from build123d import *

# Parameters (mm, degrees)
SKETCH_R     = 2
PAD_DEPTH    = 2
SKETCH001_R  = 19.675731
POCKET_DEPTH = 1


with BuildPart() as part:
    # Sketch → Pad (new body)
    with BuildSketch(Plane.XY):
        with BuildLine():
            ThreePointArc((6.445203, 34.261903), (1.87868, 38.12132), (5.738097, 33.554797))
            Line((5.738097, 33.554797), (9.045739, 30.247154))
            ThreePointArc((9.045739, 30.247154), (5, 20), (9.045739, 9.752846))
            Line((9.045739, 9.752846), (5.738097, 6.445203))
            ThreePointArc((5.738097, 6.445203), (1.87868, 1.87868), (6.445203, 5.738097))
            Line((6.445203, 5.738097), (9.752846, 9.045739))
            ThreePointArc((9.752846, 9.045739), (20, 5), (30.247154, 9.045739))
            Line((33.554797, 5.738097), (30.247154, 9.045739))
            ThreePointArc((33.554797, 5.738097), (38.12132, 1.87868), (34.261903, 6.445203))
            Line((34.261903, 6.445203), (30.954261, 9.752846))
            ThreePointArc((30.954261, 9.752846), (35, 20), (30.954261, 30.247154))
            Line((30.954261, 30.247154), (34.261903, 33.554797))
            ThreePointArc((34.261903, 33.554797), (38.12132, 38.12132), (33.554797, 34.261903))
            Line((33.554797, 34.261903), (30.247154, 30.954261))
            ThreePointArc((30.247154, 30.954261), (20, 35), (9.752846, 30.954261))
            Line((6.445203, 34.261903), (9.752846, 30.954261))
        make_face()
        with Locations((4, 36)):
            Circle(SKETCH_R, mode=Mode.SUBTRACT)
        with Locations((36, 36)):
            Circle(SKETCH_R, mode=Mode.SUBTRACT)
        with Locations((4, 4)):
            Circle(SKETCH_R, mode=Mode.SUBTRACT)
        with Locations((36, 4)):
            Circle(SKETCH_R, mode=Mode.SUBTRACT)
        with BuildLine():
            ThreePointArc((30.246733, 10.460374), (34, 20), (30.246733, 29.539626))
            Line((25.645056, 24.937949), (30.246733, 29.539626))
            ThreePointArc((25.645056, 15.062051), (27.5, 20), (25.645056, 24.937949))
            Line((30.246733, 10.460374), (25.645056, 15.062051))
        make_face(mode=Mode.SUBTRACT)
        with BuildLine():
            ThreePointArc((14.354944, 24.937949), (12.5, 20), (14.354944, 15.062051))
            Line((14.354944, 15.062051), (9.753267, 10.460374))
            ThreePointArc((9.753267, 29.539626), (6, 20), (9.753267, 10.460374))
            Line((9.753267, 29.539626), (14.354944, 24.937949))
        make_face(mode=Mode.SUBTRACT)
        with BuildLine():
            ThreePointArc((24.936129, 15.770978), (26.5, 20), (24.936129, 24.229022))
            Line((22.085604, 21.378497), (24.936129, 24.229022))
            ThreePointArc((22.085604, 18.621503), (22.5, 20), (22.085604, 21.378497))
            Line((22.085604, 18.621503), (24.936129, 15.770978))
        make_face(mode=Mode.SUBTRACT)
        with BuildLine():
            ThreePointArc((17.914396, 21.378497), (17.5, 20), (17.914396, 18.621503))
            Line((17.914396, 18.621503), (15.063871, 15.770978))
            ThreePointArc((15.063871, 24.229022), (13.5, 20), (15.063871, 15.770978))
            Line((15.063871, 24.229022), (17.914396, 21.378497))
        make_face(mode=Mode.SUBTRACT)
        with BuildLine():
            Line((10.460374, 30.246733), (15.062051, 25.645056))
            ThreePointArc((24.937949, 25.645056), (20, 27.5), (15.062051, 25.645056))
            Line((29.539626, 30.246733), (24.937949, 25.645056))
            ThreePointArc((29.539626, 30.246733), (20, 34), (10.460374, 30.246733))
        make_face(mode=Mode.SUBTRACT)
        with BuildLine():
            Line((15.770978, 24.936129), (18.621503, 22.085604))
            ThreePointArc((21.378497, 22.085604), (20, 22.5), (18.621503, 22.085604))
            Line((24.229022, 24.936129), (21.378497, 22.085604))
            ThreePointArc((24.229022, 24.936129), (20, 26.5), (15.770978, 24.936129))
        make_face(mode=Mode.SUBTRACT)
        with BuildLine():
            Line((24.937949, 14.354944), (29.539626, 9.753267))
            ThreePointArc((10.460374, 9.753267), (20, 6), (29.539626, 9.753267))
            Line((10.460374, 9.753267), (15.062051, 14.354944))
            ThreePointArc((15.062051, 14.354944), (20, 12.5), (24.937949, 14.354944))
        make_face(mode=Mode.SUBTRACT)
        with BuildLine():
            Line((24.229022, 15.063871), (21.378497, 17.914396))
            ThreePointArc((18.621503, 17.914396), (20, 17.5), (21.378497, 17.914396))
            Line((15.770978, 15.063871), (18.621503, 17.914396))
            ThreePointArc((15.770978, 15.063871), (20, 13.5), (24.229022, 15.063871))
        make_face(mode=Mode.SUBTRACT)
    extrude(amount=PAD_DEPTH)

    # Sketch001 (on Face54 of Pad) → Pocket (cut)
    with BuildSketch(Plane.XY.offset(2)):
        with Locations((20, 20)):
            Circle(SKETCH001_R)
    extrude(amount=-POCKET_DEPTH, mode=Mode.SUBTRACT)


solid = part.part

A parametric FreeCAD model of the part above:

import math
import FreeCAD as App
import Part
import Sketcher

V = App.Vector

doc = App.newDocument("Part")
body = doc.addObject("PartDesign::Body", "Body")

# Sketch on XY plane
sketch1 = body.newObject("Sketcher::SketchObject", "Sketch")
sketch1.AttachmentSupport = (doc.getObject("XY_Plane"), [""])
sketch1.MapMode = "FlatFace"
sketch1.addGeometry([
    Part.ArcOfCircle(Part.Circle(V(4, 36, 0), V(0, 0, 1), 3), math.radians(-35), math.radians(305)),  # 0
    Part.LineSegment(V(5.7, 33.6, 0), V(9, 30.2, 0)),  # 1
    Part.ArcOfCircle(Part.Circle(V(20, 20, 0), V(0, 0, 1), 15), math.radians(137), math.radians(223)),  # 2
    Part.LineSegment(V(9, 9.8, 0), V(5.7, 6.4, 0)),  # 3
    Part.ArcOfCircle(Part.Circle(V(4, 4, 0), V(0, 0, 1), 3), math.radians(55), math.radians(395)),  # 4
    Part.LineSegment(V(6.4, 5.7, 0), V(9.8, 9, 0)),  # 5
    Part.ArcOfCircle(Part.Circle(V(20, 20, 0), V(0, 0, 1), 15), math.radians(-133), math.radians(-47)),  # 6
    Part.LineSegment(V(30.2, 9, 0), V(33.6, 5.7, 0)),  # 7
    Part.ArcOfCircle(Part.Circle(V(36, 4, 0), V(0, 0, 1), 3), math.radians(145), math.radians(485)),  # 8
    Part.LineSegment(V(34.3, 6.4, 0), V(31, 9.8, 0)),  # 9
    Part.ArcOfCircle(Part.Circle(V(20, 20, 0), V(0, 0, 1), 15), math.radians(-43), math.radians(43)),  # 10
    Part.LineSegment(V(31, 30.2, 0), V(34.3, 33.6, 0)),  # 11
    Part.ArcOfCircle(Part.Circle(V(36, 36, 0), V(0, 0, 1), 3), math.radians(-125), math.radians(215)),  # 12
    Part.LineSegment(V(33.6, 34.3, 0), V(30.2, 31, 0)),  # 13
    Part.ArcOfCircle(Part.Circle(V(20, 20, 0), V(0, 0, 1), 15), math.radians(47), math.radians(133)),  # 14
    Part.LineSegment(V(9.8, 31, 0), V(6.4, 34.3, 0)),  # 15
    Part.Circle(V(4, 4, 0), V(0, 0, 1), 2),  # 16
    Part.ArcOfCircle(Part.Circle(V(20, 20, 0), V(0, 0, 1), 7.5), math.radians(-131), math.radians(-49)),  # 17
    Part.LineSegment(V(24.9, 14.4, 0), V(29.5, 9.8, 0)),  # 18
    Part.ArcOfCircle(Part.Circle(V(20, 20, 0), V(0, 0, 1), 14), math.radians(-133), math.radians(-47)),  # 19
    Part.LineSegment(V(10.5, 9.8, 0), V(15.1, 14.4, 0)),  # 20
    Part.Circle(V(36, 4, 0), V(0, 0, 1), 2),  # 21
    Part.LineSegment(V(21.4, 17.9, 0), V(24.2, 15.1, 0)),  # 22
    Part.ArcOfCircle(Part.Circle(V(20, 20, 0), V(0, 0, 1), 6.5), math.radians(-131), math.radians(-49)),  # 23
    Part.LineSegment(V(15.8, 15.1, 0), V(18.6, 17.9, 0)),  # 24
    Part.ArcOfCircle(Part.Circle(V(20, 20, 0), V(0, 0, 1), 2.5), math.radians(-123), math.radians(-57)),  # 25
    Part.LineSegment(V(9.8, 29.5, 0), V(14.4, 24.9, 0)),  # 26
    Part.ArcOfCircle(Part.Circle(V(20, 20, 0), V(0, 0, 1), 7.5), math.radians(139), math.radians(221)),  # 27
    Part.LineSegment(V(14.4, 15.1, 0), V(9.8, 10.5, 0)),  # 28
    Part.ArcOfCircle(Part.Circle(V(20, 20, 0), V(0, 0, 1), 14), math.radians(137), math.radians(223)),  # 29
    Part.LineSegment(V(15.1, 24.2, 0), V(17.9, 21.4, 0)),  # 30
    Part.ArcOfCircle(Part.Circle(V(20, 20, 0), V(0, 0, 1), 2.5), math.radians(147), math.radians(213)),  # 31
    Part.LineSegment(V(17.9, 18.6, 0), V(15.1, 15.8, 0)),  # 32
    Part.ArcOfCircle(Part.Circle(V(20, 20, 0), V(0, 0, 1), 6.5), math.radians(139), math.radians(221)),  # 33
    Part.Circle(V(4, 36, 0), V(0, 0, 1), 2),  # 34
    Part.ArcOfCircle(Part.Circle(V(20, 20, 0), V(0, 0, 1), 6.5), math.radians(-41), math.radians(41)),  # 35
    Part.LineSegment(V(24.9, 15.8, 0), V(22.1, 18.6, 0)),  # 36
    Part.ArcOfCircle(Part.Circle(V(20, 20, 0), V(0, 0, 1), 2.5), math.radians(-33), math.radians(33)),  # 37
    Part.LineSegment(V(22.1, 21.4, 0), V(24.9, 24.2, 0)),  # 38
    Part.LineSegment(V(18.6, 22.1, 0), V(15.8, 24.9, 0)),  # 39
    Part.ArcOfCircle(Part.Circle(V(20, 20, 0), V(0, 0, 1), 6.5), math.radians(49), math.radians(131)),  # 40
    Part.LineSegment(V(24.2, 24.9, 0), V(21.4, 22.1, 0)),  # 41
    Part.ArcOfCircle(Part.Circle(V(20, 20, 0), V(0, 0, 1), 2.5), math.radians(57), math.radians(123)),  # 42
    Part.ArcOfCircle(Part.Circle(V(20, 20, 0), V(0, 0, 1), 14), math.radians(-43), math.radians(43)),  # 43
    Part.LineSegment(V(30.2, 10.5, 0), V(25.6, 15.1, 0)),  # 44
    Part.ArcOfCircle(Part.Circle(V(20, 20, 0), V(0, 0, 1), 7.5), math.radians(-41), math.radians(41)),  # 45
    Part.LineSegment(V(25.6, 24.9, 0), V(30.2, 29.5, 0)),  # 46
    Part.LineSegment(V(15.1, 25.6, 0), V(10.5, 30.2, 0)),  # 47
    Part.ArcOfCircle(Part.Circle(V(20, 20, 0), V(0, 0, 1), 14), math.radians(47), math.radians(133)),  # 48
    Part.LineSegment(V(29.5, 30.2, 0), V(24.9, 25.6, 0)),  # 49
    Part.ArcOfCircle(Part.Circle(V(20, 20, 0), V(0, 0, 1), 7.5), math.radians(49), math.radians(131)),  # 50
    Part.Circle(V(36, 36, 0), V(0, 0, 1), 2),  # 51
], False)
sketch1.addConstraint([
    Sketcher.Constraint("Coincident", 0, 2, 1, 1),
    Sketcher.Constraint("Coincident", 1, 2, 2, 1),
    Sketcher.Constraint("Coincident", 2, 2, 3, 1),
    Sketcher.Constraint("Coincident", 3, 2, 4, 1),
    Sketcher.Constraint("Coincident", 4, 2, 5, 1),
    Sketcher.Constraint("Coincident", 5, 2, 6, 1),
    Sketcher.Constraint("Coincident", 6, 2, 7, 1),
    Sketcher.Constraint("Coincident", 7, 2, 8, 1),
    Sketcher.Constraint("Coincident", 8, 2, 9, 1),
    Sketcher.Constraint("Coincident", 9, 2, 10, 1),
    Sketcher.Constraint("Coincident", 10, 2, 11, 1),
    Sketcher.Constraint("Coincident", 11, 2, 12, 1),
    Sketcher.Constraint("Coincident", 12, 2, 13, 1),
    Sketcher.Constraint("Coincident", 13, 2, 14, 1),
    Sketcher.Constraint("Coincident", 14, 2, 15, 1),
    Sketcher.Constraint("Coincident", 15, 2, 0, 1),
    Sketcher.Constraint("Coincident", 17, 2, 18, 1),
    Sketcher.Constraint("Coincident", 18, 2, 19, 2),
    Sketcher.Constraint("Coincident", 19, 1, 20, 1),
    Sketcher.Constraint("Coincident", 20, 2, 17, 1),
    Sketcher.Constraint("Coincident", 22, 2, 23, 2),
    Sketcher.Constraint("Coincident", 23, 1, 24, 1),
    Sketcher.Constraint("Coincident", 24, 2, 25, 1),
    Sketcher.Constraint("Coincident", 25, 2, 22, 1),
    Sketcher.Constraint("Coincident", 26, 2, 27, 1),
    Sketcher.Constraint("Coincident", 27, 2, 28, 1),
    Sketcher.Constraint("Coincident", 28, 2, 29, 2),
    Sketcher.Constraint("Coincident", 29, 1, 26, 1),
    Sketcher.Constraint("Coincident", 30, 2, 31, 1),
    Sketcher.Constraint("Coincident", 31, 2, 32, 1),
    Sketcher.Constraint("Coincident", 32, 2, 33, 2),
    Sketcher.Constraint("Coincident", 33, 1, 30, 1),
    Sketcher.Constraint("Coincident", 35, 1, 36, 1),
    Sketcher.Constraint("Coincident", 36, 2, 37, 1),
    Sketcher.Constraint("Coincident", 37, 2, 38, 1),
    Sketcher.Constraint("Coincident", 38, 2, 35, 2),
    Sketcher.Constraint("Coincident", 39, 2, 40, 2),
    Sketcher.Constraint("Coincident", 40, 1, 41, 1),
    Sketcher.Constraint("Coincident", 41, 2, 42, 1),
    Sketcher.Constraint("Coincident", 42, 2, 39, 1),
    Sketcher.Constraint("Coincident", 43, 1, 44, 1),
    Sketcher.Constraint("Coincident", 44, 2, 45, 1),
    Sketcher.Constraint("Coincident", 45, 2, 46, 1),
    Sketcher.Constraint("Coincident", 46, 2, 43, 2),
    Sketcher.Constraint("Coincident", 47, 2, 48, 2),
    Sketcher.Constraint("Coincident", 48, 1, 49, 1),
    Sketcher.Constraint("Coincident", 49, 2, 50, 1),
    Sketcher.Constraint("Coincident", 50, 2, 47, 1),
    Sketcher.Constraint("Coincident", 6, 3, 2, 3),
    Sketcher.Constraint("Coincident", 10, 3, 2, 3),
    Sketcher.Constraint("Coincident", 14, 3, 2, 3),
    Sketcher.Constraint("Coincident", 16, 3, 4, 3),
    Sketcher.Constraint("Coincident", 17, 3, 2, 3),
    Sketcher.Constraint("Coincident", 19, 3, 2, 3),
    Sketcher.Constraint("Coincident", 21, 3, 8, 3),
    Sketcher.Constraint("Coincident", 23, 3, 2, 3),
    Sketcher.Constraint("Coincident", 25, 3, 2, 3),
    Sketcher.Constraint("Coincident", 27, 3, 2, 3),
    Sketcher.Constraint("Coincident", 29, 3, 2, 3),
    Sketcher.Constraint("Coincident", 31, 3, 2, 3),
    Sketcher.Constraint("Coincident", 33, 3, 2, 3),
    Sketcher.Constraint("Coincident", 34, 3, 0, 3),
    Sketcher.Constraint("Coincident", 35, 3, 2, 3),
    Sketcher.Constraint("Coincident", 37, 3, 2, 3),
    Sketcher.Constraint("Coincident", 40, 3, 2, 3),
    Sketcher.Constraint("Coincident", 42, 3, 2, 3),
    Sketcher.Constraint("Coincident", 43, 3, 2, 3),
    Sketcher.Constraint("Coincident", 45, 3, 2, 3),
    Sketcher.Constraint("Coincident", 48, 3, 2, 3),
    Sketcher.Constraint("Coincident", 50, 3, 2, 3),
    Sketcher.Constraint("Coincident", 51, 3, 12, 3),
    Sketcher.Constraint("Equal", 0, 4),
    Sketcher.Constraint("Equal", 2, 6),
    Sketcher.Constraint("Equal", 4, 8),
    Sketcher.Constraint("Equal", 6, 10),
    Sketcher.Constraint("Equal", 8, 12),
    Sketcher.Constraint("Equal", 10, 14),
    Sketcher.Constraint("Equal", 16, 21),
    Sketcher.Constraint("Equal", 17, 27),
    Sketcher.Constraint("Equal", 19, 29),
    Sketcher.Constraint("Equal", 25, 31),
    Sketcher.Constraint("Equal", 23, 33),
    Sketcher.Constraint("Equal", 21, 34),
    Sketcher.Constraint("Equal", 33, 35),
    Sketcher.Constraint("Equal", 31, 37),
    Sketcher.Constraint("Equal", 35, 40),
    Sketcher.Constraint("Equal", 37, 42),
    Sketcher.Constraint("Equal", 29, 43),
    Sketcher.Constraint("Equal", 27, 45),
    Sketcher.Constraint("Equal", 43, 48),
    Sketcher.Constraint("Equal", 45, 50),
    Sketcher.Constraint("Equal", 34, 51),
    Sketcher.Constraint("Perpendicular", 1, 3),
    Sketcher.Constraint("Parallel", 3, 5),
    Sketcher.Constraint("Perpendicular", 5, 7),
    Sketcher.Constraint("Parallel", 7, 9),
    Sketcher.Constraint("Perpendicular", 9, 11),
    Sketcher.Constraint("Parallel", 11, 13),
    Sketcher.Constraint("Perpendicular", 13, 15),
    Sketcher.Constraint("Parallel", 15, 18),
    Sketcher.Constraint("Perpendicular", 18, 20),
    Sketcher.Constraint("Perpendicular", 20, 22),
    Sketcher.Constraint("Perpendicular", 22, 24),
    Sketcher.Constraint("Perpendicular", 24, 26),
    Sketcher.Constraint("Perpendicular", 26, 28),
    Sketcher.Constraint("Perpendicular", 28, 30),
    Sketcher.Constraint("Perpendicular", 30, 32),
    Sketcher.Constraint("Perpendicular", 32, 36),
    Sketcher.Constraint("Perpendicular", 36, 38),
    Sketcher.Constraint("Perpendicular", 38, 39),
    Sketcher.Constraint("Perpendicular", 39, 41),
    Sketcher.Constraint("Perpendicular", 41, 44),
    Sketcher.Constraint("Perpendicular", 44, 46),
    Sketcher.Constraint("Perpendicular", 46, 47),
    Sketcher.Constraint("Perpendicular", 47, 49),
    Sketcher.Constraint("Horizontal", 4, 3, 8, 3),
    Sketcher.Constraint("Horizontal", 0, 3, 12, 3),
    Sketcher.Constraint("Horizontal", 5, 2, 6, 2),
    Sketcher.Constraint("Horizontal", 4, 2, 7, 2),
    Sketcher.Constraint("Horizontal", 3, 2, 8, 2),
    Sketcher.Constraint("Horizontal", 1, 2, 10, 2),
    Sketcher.Constraint("Horizontal", 0, 2, 11, 2),
    Sketcher.Constraint("Horizontal", 13, 2, 14, 2),
    Sketcher.Constraint("Horizontal", 18, 2, 19, 1),
    Sketcher.Constraint("Horizontal", 17, 2, 20, 2),
    Sketcher.Constraint("Horizontal", 22, 2, 23, 1),
    Sketcher.Constraint("Horizontal", 32, 2, 35, 1),
    Sketcher.Constraint("Horizontal", 30, 2, 37, 2),
    Sketcher.Constraint("Horizontal", 39, 2, 40, 1),
    Sketcher.Constraint("Horizontal", 28, 2, 43, 1),
    Sketcher.Constraint("Horizontal", 26, 2, 45, 2),
    Sketcher.Constraint("Horizontal", 47, 2, 48, 1),
    Sketcher.Constraint("Vertical", 0, 3, 4, 3),
    Sketcher.Constraint("Vertical", 1, 2, 2, 2),
    Sketcher.Constraint("Vertical", 0, 2, 3, 2),
    Sketcher.Constraint("Vertical", 7, 2, 12, 2),
    Sketcher.Constraint("Vertical", 26, 2, 27, 2),
    Sketcher.Constraint("Vertical", 30, 2, 31, 2),
    Sketcher.Constraint("Vertical", 23, 1, 39, 2),
    Sketcher.Constraint("Vertical", 19, 1, 47, 2),
    Sketcher.Constraint("Equal", 3, 5),
    Sketcher.Constraint("Equal", 20, 26),
    Sketcher.Constraint("Equal", 24, 30),
    Sketcher.Constraint("Diameter", 16, 4.0),
    Sketcher.Constraint("Radius", 0, 3.0),
    Sketcher.Constraint("Radius", 2, 15.0),
    Sketcher.Constraint("Radius", 19, 14.0),
    Sketcher.Constraint("Radius", 17, 7.499999),
    Sketcher.Constraint("Radius", 23, 6.499999),
    Sketcher.Constraint("DistanceX", -1, 1, 0, 3, 4.0),
    Sketcher.Constraint("DistanceY", -1, 1, 0, 3, 36.0),
    Sketcher.Constraint("DistanceX", -1, 1, 2, 3, 20.0),
    Sketcher.Constraint("DistanceY", -1, 1, 2, 3, 20.0),
    Sketcher.Constraint("Radius", 25, 2.499998),
    Sketcher.Constraint("Distance", 22, 4.031251),
    Sketcher.Constraint("DistanceX", -1, 1, 1, 2, 9.045739),
    Sketcher.Constraint("DistanceX", -1, 1, 17, 2, 24.937949),
])
pad1 = body.newObject("PartDesign::Pad", "Pad")
pad1.Profile = sketch1
pad1.Length = 2

# Sketch on XY plane
sketch2 = body.newObject("Sketcher::SketchObject", "Sketch001")
sketch2.AttachmentSupport = (doc.getObject("XY_Plane"), [""])
sketch2.MapMode = "FlatFace"
sketch2.AttachmentOffset = App.Placement(V(0, 0, 2), App.Rotation())
sketch2.addGeometry(Part.Circle(V(20, 20, 0), V(0, 0, 1), 20), False)
sketch2.addConstraint([
    Sketcher.Constraint("DistanceX", -1, 1, 0, 3, 20.0),
    Sketcher.Constraint("DistanceY", -1, 1, 0, 3, 20.0),
    Sketcher.Constraint("Diameter", 0, 39.351462),
])
pocket1 = body.newObject("PartDesign::Pocket", "Pocket")
pocket1.Profile = sketch2
pocket1.Length = 1

doc.recompute()
